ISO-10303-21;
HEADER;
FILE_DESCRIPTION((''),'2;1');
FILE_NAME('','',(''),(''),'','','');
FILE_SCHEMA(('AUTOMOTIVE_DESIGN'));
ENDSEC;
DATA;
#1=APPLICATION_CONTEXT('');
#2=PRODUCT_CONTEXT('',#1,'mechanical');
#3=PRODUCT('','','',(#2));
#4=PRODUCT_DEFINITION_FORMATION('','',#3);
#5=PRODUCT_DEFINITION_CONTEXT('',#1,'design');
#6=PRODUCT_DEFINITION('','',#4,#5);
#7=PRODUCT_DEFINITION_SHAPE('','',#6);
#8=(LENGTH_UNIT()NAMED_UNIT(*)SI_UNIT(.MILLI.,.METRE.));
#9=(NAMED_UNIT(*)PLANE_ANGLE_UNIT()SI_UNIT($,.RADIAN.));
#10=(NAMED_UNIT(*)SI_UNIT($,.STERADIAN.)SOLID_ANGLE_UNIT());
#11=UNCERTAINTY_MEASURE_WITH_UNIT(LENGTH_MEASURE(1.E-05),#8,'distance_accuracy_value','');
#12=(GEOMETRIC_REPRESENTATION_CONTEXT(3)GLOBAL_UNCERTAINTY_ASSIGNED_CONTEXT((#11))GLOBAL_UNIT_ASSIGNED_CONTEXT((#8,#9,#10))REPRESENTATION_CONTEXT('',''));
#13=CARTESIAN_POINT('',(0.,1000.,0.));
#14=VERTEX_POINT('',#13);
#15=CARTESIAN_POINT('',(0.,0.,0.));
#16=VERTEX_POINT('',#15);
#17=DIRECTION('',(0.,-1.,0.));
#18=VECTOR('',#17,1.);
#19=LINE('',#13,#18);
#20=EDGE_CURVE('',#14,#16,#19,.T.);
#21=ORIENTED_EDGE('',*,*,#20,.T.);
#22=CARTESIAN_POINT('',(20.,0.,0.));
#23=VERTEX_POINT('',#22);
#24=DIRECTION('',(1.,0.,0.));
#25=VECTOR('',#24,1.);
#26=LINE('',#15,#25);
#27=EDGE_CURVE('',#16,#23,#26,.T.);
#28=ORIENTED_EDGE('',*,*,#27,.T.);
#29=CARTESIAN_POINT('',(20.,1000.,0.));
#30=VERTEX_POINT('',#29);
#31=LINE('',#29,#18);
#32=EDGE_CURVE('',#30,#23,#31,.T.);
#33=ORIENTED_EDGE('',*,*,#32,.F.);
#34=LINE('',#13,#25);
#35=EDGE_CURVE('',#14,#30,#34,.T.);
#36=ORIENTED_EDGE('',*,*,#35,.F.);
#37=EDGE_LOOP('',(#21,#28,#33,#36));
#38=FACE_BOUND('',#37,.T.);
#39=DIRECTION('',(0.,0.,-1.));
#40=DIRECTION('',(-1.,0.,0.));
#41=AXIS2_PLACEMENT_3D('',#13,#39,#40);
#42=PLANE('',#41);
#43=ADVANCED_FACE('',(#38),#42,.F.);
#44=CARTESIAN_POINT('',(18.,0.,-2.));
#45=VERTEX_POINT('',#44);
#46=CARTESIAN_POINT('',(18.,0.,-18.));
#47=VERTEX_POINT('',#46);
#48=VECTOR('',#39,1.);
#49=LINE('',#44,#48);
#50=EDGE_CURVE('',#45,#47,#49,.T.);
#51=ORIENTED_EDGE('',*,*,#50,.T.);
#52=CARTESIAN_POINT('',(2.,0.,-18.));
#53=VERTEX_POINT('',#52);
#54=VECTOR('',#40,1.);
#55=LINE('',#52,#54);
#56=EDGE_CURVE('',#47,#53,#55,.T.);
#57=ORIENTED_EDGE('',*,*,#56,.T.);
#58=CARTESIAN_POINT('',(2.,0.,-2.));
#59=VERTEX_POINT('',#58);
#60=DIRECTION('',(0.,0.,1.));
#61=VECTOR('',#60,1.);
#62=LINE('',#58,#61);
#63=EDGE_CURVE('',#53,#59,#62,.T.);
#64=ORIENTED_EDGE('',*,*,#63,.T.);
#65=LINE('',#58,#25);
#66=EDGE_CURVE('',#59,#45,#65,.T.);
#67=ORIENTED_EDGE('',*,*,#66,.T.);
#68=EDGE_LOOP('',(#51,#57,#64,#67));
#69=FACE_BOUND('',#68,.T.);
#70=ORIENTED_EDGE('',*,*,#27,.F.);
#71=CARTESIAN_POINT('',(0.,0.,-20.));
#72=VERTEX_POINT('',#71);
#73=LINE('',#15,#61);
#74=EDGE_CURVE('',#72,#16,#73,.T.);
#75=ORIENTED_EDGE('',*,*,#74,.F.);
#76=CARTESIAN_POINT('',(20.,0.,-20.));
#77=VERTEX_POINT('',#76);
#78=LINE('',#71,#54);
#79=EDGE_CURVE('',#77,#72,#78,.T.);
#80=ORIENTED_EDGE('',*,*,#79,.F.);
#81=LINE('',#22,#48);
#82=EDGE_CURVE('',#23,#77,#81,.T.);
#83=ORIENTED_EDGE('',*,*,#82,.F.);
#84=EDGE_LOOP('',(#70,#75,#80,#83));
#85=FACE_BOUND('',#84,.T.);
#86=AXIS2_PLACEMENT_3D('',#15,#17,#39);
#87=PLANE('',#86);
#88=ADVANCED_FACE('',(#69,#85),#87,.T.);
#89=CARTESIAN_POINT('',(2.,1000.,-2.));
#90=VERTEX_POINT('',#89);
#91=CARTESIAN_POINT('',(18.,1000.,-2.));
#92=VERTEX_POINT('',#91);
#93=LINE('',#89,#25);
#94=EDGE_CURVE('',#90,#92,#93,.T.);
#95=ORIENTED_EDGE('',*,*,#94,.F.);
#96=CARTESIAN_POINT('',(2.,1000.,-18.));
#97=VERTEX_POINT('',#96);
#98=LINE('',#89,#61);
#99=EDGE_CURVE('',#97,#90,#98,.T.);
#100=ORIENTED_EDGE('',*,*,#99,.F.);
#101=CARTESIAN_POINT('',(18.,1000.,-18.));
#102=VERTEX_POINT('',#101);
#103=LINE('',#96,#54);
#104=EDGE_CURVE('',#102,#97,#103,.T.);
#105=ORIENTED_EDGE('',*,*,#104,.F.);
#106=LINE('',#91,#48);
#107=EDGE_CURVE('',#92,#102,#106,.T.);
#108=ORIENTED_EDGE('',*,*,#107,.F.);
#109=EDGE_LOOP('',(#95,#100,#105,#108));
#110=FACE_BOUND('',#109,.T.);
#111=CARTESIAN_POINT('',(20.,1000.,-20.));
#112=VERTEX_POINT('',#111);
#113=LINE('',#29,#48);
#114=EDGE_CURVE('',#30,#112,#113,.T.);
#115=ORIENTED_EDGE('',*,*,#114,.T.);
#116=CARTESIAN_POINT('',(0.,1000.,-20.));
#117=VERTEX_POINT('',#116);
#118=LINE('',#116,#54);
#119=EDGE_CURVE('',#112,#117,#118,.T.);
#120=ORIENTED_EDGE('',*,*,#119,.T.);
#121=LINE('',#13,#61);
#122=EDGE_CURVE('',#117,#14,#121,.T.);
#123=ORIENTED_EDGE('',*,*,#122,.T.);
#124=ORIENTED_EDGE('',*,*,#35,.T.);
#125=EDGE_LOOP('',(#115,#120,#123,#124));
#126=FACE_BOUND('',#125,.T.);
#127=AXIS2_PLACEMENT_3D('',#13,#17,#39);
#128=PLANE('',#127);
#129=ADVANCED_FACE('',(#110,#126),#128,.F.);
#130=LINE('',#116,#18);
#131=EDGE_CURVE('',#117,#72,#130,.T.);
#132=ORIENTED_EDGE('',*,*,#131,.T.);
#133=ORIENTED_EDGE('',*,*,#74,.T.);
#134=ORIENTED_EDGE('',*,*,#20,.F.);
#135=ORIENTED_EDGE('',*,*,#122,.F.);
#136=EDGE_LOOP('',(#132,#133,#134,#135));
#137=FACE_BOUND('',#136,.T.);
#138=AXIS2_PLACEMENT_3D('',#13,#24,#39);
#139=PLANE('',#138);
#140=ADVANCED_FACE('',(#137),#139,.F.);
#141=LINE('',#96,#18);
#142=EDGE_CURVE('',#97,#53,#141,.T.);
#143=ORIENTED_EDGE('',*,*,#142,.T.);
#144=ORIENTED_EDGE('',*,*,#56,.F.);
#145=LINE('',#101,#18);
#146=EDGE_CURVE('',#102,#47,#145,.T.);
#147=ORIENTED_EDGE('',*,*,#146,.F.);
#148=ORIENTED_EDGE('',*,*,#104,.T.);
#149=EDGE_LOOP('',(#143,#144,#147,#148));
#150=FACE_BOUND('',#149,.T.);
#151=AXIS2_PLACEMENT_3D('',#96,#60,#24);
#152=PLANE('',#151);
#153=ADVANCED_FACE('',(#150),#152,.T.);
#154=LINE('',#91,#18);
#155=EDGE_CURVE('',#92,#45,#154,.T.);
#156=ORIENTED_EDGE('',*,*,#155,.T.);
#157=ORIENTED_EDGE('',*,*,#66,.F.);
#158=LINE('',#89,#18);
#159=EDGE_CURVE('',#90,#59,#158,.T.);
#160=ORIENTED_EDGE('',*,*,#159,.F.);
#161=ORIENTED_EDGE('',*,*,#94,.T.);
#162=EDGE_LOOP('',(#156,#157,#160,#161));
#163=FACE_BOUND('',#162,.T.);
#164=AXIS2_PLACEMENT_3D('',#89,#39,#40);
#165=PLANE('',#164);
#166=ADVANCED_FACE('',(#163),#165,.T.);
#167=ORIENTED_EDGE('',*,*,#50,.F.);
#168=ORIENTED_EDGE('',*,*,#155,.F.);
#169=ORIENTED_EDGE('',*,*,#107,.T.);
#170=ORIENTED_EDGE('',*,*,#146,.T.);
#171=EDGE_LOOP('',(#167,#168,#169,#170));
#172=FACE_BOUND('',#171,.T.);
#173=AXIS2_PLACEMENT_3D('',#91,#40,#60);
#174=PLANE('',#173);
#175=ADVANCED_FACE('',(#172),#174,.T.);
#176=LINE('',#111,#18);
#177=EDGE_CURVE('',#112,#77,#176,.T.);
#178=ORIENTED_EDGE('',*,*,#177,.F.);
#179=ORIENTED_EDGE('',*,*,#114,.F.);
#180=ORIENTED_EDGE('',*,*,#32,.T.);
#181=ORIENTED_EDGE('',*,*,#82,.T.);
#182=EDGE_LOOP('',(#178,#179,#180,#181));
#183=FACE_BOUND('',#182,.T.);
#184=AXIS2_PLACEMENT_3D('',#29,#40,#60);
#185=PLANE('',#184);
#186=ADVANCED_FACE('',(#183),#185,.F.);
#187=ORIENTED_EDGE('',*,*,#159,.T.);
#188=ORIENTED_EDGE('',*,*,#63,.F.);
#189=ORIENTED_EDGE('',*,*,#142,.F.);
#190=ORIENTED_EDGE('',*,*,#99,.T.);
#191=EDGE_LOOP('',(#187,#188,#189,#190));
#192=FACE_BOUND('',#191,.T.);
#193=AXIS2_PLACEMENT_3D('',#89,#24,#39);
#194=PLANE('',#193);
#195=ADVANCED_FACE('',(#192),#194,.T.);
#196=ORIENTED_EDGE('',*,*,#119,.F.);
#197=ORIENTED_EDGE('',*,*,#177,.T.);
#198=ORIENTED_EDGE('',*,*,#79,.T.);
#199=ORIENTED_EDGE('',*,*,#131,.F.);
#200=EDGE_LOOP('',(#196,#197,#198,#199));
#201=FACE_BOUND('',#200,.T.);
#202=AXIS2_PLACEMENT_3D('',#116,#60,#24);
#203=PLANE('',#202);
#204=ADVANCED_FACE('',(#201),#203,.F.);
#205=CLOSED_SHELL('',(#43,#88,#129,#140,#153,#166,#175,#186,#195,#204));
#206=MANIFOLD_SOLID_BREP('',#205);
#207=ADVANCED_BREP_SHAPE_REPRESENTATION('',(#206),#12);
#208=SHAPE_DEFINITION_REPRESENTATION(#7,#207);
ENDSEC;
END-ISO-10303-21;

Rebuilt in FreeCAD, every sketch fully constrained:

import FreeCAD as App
import Part
import Sketcher
from FreeCAD import Vector
Q = App.Units.Quantity


def add_polygon(sketch, points):
    """Adds a closed chain of lines whose ends are joined by coincident constraints."""
    first, n = sketch.GeometryCount, len(points)
    for a, b in zip(points, points[1:] + points[:1]):
        sketch.addGeometry(Part.LineSegment(App.Vector(*a, 0), App.Vector(*b, 0)), False)
    for i in range(n):
        sketch.addConstraint(Sketcher.Constraint("Coincident", first + i, 2, first + (i + 1) % n, 1))

doc = App.newDocument("Part")
body = doc.addObject("PartDesign::Body", "Body")

# Sketch on XZ plane
sketch1 = body.newObject("Sketcher::SketchObject", "Sketch")
sketch1.AttachmentSupport = (doc.getObject("XZ_Plane"), [""])
sketch1.MapMode = "FlatFace"
add_polygon(sketch1, [(0, -20), (0, 0), (20, 0), (20, -20)])  # lines 0-3
add_polygon(sketch1, [(18, -2), (2, -2), (2, -18), (18, -18)])  # lines 4-7
sketch1.addConstraint([
    Sketcher.Constraint("Vertical", 0),
    Sketcher.Constraint("Horizontal", 1),
    Sketcher.Constraint("Vertical", 2),
    Sketcher.Constraint("Horizontal", 3),
    Sketcher.Constraint("Horizontal", 4),
    Sketcher.Constraint("Vertical", 5),
    Sketcher.Constraint("Horizontal", 6),
    Sketcher.Constraint("Vertical", 7),
    Sketcher.Constraint("Coincident", 0, 2, -1, 1),
    Sketcher.Constraint("Equal", 3, 0),
    Sketcher.Constraint("Equal", 6, 5),
    Sketcher.Constraint("DistanceX", 1, 1, 1, 2, Q("20 mm")),
    Sketcher.Constraint("DistanceX", 4, 2, 4, 1, Q("16 mm")),
    Sketcher.Constraint("DistanceX", -1, 1, 4, 2, Q("2 mm")),
    Sketcher.Constraint("DistanceY", 4, 2, -1, 1, Q("2 mm")),
])
pad1 = body.newObject("PartDesign::Pad", "Pad")
pad1.Profile = sketch1
pad1.Length = 1000
pad1.Reversed = True

doc.recompute()
